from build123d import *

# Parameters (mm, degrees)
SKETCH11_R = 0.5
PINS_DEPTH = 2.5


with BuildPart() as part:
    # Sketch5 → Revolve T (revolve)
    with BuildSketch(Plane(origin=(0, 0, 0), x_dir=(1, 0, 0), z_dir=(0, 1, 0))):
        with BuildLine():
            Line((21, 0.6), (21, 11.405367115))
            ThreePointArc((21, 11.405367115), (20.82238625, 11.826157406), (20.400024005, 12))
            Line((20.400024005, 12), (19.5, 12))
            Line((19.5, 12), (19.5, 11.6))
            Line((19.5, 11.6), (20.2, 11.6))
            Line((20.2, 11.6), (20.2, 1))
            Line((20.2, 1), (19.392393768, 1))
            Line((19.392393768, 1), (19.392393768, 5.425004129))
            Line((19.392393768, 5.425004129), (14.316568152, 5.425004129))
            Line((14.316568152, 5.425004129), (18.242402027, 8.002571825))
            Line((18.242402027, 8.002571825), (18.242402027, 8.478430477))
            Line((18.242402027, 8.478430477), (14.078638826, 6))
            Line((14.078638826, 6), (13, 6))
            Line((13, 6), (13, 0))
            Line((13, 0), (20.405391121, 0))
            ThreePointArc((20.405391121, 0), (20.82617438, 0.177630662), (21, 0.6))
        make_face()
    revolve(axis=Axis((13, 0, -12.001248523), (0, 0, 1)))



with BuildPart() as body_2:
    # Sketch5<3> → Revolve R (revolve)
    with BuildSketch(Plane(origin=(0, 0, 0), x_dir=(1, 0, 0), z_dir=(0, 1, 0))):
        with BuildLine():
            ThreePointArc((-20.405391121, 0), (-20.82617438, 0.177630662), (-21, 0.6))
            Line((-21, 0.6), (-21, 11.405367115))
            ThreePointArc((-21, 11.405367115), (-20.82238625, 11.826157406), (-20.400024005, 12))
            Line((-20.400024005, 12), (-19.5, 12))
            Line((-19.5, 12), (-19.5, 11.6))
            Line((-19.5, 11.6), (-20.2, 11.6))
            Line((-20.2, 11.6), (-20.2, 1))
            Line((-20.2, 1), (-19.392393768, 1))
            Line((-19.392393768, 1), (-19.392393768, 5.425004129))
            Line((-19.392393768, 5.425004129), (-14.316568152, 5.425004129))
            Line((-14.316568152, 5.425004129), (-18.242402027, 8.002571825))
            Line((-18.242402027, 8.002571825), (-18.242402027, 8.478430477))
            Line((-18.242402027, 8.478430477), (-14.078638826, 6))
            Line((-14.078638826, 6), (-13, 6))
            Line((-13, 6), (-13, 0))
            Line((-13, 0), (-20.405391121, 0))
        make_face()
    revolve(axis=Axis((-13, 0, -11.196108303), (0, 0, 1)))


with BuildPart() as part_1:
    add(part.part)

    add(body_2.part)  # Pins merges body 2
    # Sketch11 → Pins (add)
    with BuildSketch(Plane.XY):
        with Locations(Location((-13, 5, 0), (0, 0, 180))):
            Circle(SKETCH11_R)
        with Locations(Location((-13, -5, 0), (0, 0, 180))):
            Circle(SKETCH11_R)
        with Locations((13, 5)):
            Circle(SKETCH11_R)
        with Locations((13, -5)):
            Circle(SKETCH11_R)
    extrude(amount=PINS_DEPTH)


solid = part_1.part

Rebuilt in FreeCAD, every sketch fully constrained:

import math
import FreeCAD as App
import Part
import Sketcher

doc = App.newDocument("Part")
body = doc.addObject("PartDesign::Body", "Body")

sketch1 = body.newObject("Sketcher::SketchObject", "Sketch")
sketch1.AttachmentSupport = (doc.getObject("XZ_Plane"), [""])
sketch1.MapMode = "FlatFace"
sketch1.addGeometry([
    Part.LineSegment(App.Vector(21, -0.6, 0), App.Vector(21, -11.41, 0)),
    Part.ArcOfCircle(Part.Circle(App.Vector(20.4, -11.4, 0), App.Vector(0, 0, 1), 0.6), math.radians(-90), math.radians(-1)),
    Part.LineSegment(App.Vector(20.4, -12, 0), App.Vector(19.5, -12, 0)),
    Part.LineSegment(App.Vector(19.5, -12, 0), App.Vector(19.5, -11.6, 0)),
    Part.LineSegment(App.Vector(19.5, -11.6, 0), App.Vector(20.2, -11.6, 0)),
    Part.LineSegment(App.Vector(20.2, -11.6, 0), App.Vector(20.2, -1, 0)),
    Part.LineSegment(App.Vector(20.2, -1, 0), App.Vector(19.39, -1, 0)),
    Part.LineSegment(App.Vector(19.39, -1, 0), App.Vector(19.39, -5.43, 0)),
    Part.LineSegment(App.Vector(19.39, -5.43, 0), App.Vector(14.32, -5.43, 0)),
    Part.LineSegment(App.Vector(14.32, -5.43, 0), App.Vector(18.24, -8, 0)),
    Part.LineSegment(App.Vector(18.24, -8, 0), App.Vector(18.24, -8.48, 0)),
    Part.LineSegment(App.Vector(18.24, -8.48, 0), App.Vector(14.08, -6, 0)),
    Part.LineSegment(App.Vector(14.08, -6, 0), App.Vector(13, -6, 0)),
    Part.LineSegment(App.Vector(13, -6, 0), App.Vector(13, 0, 0)),
    Part.LineSegment(App.Vector(13, 0, 0), App.Vector(20.41, 0, 0)),
    Part.ArcOfCircle(Part.Circle(App.Vector(20.4, -0.6, 0), App.Vector(0, 0, 1), 0.6), math.radians(0), math.radians(89)),
], False)
sketch1.addGeometry(Part.LineSegment(App.Vector(13, -12, 0), App.Vector(13, 0, 0)), True)
sketch1.addConstraint([
    Sketcher.Constraint("Coincident", 0, 2, 1, 2),
    Sketcher.Constraint("Tangent", 1, 1, 2, 1),
    Sketcher.Constraint("Coincident", 2, 2, 3, 1),
    Sketcher.Constraint("Coincident", 3, 2, 4, 1),
    Sketcher.Constraint("Coincident", 4, 2, 5, 1),
    Sketcher.Constraint("Coincident", 5, 2, 6, 1),
    Sketcher.Constraint("Coincident", 6, 2, 7, 1),
    Sketcher.Constraint("Coincident", 7, 2, 8, 1),
    Sketcher.Constraint("Coincident", 8, 2, 9, 1),
    Sketcher.Constraint("Coincident", 9, 2, 10, 1),
    Sketcher.Constraint("Coincident", 10, 2, 11, 1),
    Sketcher.Constraint("Coincident", 11, 2, 12, 1),
    Sketcher.Constraint("Coincident", 12, 2, 13, 1),
    Sketcher.Constraint("Coincident", 13, 2, 14, 1),
    Sketcher.Constraint("Coincident", 14, 2, 15, 2),
    Sketcher.Constraint("Coincident", 15, 1, 0, 1),
    Sketcher.Constraint("Vertical", 0),
    Sketcher.Constraint("Horizontal", 2),
    Sketcher.Constraint("Vertical", 3),
    Sketcher.Constraint("Horizontal", 4),
    Sketcher.Constraint("Vertical", 5),
    Sketcher.Constraint("Horizontal", 6),
    Sketcher.Constraint("Vertical", 7),
    Sketcher.Constraint("Horizontal", 8),
    Sketcher.Constraint("Vertical", 10),
    Sketcher.Constraint("Horizontal", 12),
    Sketcher.Constraint("Vertical", 13),
    Sketcher.Constraint("Horizontal", 14),
    Sketcher.Constraint("Vertical", 16),
    Sketcher.Constraint("Coincident", 16, 2, 13, 2),
    Sketcher.Constraint("Equal", 1, 15),
    Sketcher.Constraint("PointOnObject", 13, 2, -1),
    Sketcher.Constraint("Horizontal", 2, 2, 16, 1),
    Sketcher.Constraint("Radius", 1, 0.6),
    Sketcher.Constraint("DistanceY", 13, 1, 13, 2, 6.0),
    Sketcher.Constraint("DistanceY", 16, 1, 16, 2, 12.0),
    Sketcher.Constraint("DistanceX", 4, 1, 4, 2, 0.7),
    Sketcher.Constraint("DistanceY", 3, 1, 3, 2, 0.4),
    Sketcher.Constraint("DistanceY", 5, 1, 5, 2, 10.6),
    Sketcher.Constraint("DistanceX", -1, 1, 0, 2, 21.0),
    Sketcher.Constraint("DistanceX", -1, 1, 12, 2, 13.0),
    Sketcher.Constraint("DistanceX", -1, 1, 2, 2, 19.5),
    Sketcher.Constraint("DistanceY", 15, 1, -1, 1, 0.6),
    Sketcher.Constraint("DistanceX", 12, 2, 12, 1, 1.078639),
    Sketcher.Constraint("DistanceX", 14, 1, 14, 2, 7.405391),
    Sketcher.Constraint("DistanceY", 10, 2, 10, 1, 0.475859),
    Sketcher.Constraint("Distance", 11, 4.845569),
    Sketcher.Constraint("DistanceX", 2, 2, 2, 1, 0.900024),
    Sketcher.Constraint("DistanceX", 6, 2, 6, 1, 0.807606),
    Sketcher.Constraint("DistanceX", 8, 2, 8, 1, 5.075826),
    Sketcher.Constraint("DistanceY", 7, 2, 7, 1, 4.425004),
    Sketcher.Constraint("DistanceY", 9, 2, -1, 1, 8.002572),
])
revolution = body.newObject("PartDesign::Revolution", "Revolution")
revolution.Profile = sketch1
revolution.ReferenceAxis = (sketch1, ["Axis0"])
revolution.Angle = 360
body2 = doc.addObject("PartDesign::Body", "Body001")

sketch2 = body2.newObject("Sketcher::SketchObject", "Sketch001")
sketch2.AttachmentSupport = (doc.getObject("XZ_Plane001"), [""])
sketch2.MapMode = "FlatFace"
sketch2.addGeometry([
    Part.ArcOfCircle(Part.Circle(App.Vector(-20.4, -0.6, 0), App.Vector(0, 0, 1), 0.6), math.radians(91), math.radians(180)),
    Part.LineSegment(App.Vector(-20.41, 0, 0), App.Vector(-13, 0, 0)),
    Part.LineSegment(App.Vector(-13, 0, 0), App.Vector(-13, -6, 0)),
    Part.LineSegment(App.Vector(-13, -6, 0), App.Vector(-14.08, -6, 0)),
    Part.LineSegment(App.Vector(-14.08, -6, 0), App.Vector(-18.24, -8.48, 0)),
    Part.LineSegment(App.Vector(-18.24, -8.48, 0), App.Vector(-18.24, -8, 0)),
    Part.LineSegment(App.Vector(-18.24, -8, 0), App.Vector(-14.32, -5.43, 0)),
    Part.LineSegment(App.Vector(-14.32, -5.43, 0), App.Vector(-19.39, -5.43, 0)),
    Part.LineSegment(App.Vector(-19.39, -5.43, 0), App.Vector(-19.39, -1, 0)),
    Part.LineSegment(App.Vector(-19.39, -1, 0), App.Vector(-20.2, -1, 0)),
    Part.LineSegment(App.Vector(-20.2, -1, 0), App.Vector(-20.2, -11.6, 0)),
    Part.LineSegment(App.Vector(-20.2, -11.6, 0), App.Vector(-19.5, -11.6, 0)),
    Part.LineSegment(App.Vector(-19.5, -11.6, 0), App.Vector(-19.5, -12, 0)),
    Part.LineSegment(App.Vector(-19.5, -12, 0), App.Vector(-20.4, -12, 0)),
    Part.ArcOfCircle(Part.Circle(App.Vector(-20.4, -11.4, 0), App.Vector(0, 0, 1), 0.6), math.radians(-179), math.radians(-90)),
    Part.LineSegment(App.Vector(-21, -11.41, 0), App.Vector(-21, -0.6, 0)),
], False)
sketch2.addGeometry(Part.LineSegment(App.Vector(-13, -12, 0), App.Vector(-13, 0, 0)), True)
sketch2.addConstraint([
    Sketcher.Constraint("Coincident", 0, 1, 1, 1),
    Sketcher.Constraint("Coincident", 1, 2, 2, 1),
    Sketcher.Constraint("Coincident", 2, 2, 3, 1),
    Sketcher.Constraint("Coincident", 3, 2, 4, 1),
    Sketcher.Constraint("Coincident", 4, 2, 5, 1),
    Sketcher.Constraint("Coincident", 5, 2, 6, 1),
    Sketcher.Constraint("Coincident", 6, 2, 7, 1),
    Sketcher.Constraint("Coincident", 7, 2, 8, 1),
    Sketcher.Constraint("Coincident", 8, 2, 9, 1),
    Sketcher.Constraint("Coincident", 9, 2, 10, 1),
    Sketcher.Constraint("Coincident", 10, 2, 11, 1),
    Sketcher.Constraint("Coincident", 11, 2, 12, 1),
    Sketcher.Constraint("Coincident", 12, 2, 13, 1),
    Sketcher.Constraint("Tangent", 13, 2, 14, 2),
    Sketcher.Constraint("Coincident", 14, 1, 15, 1),
    Sketcher.Constraint("Coincident", 15, 2, 0, 2),
    Sketcher.Constraint("Horizontal", 1),
    Sketcher.Constraint("Vertical", 2),
    Sketcher.Constraint("Horizontal", 3),
    Sketcher.Constraint("Vertical", 5),
    Sketcher.Constraint("Horizontal", 7),
    Sketcher.Constraint("Vertical", 8),
    Sketcher.Constraint("Horizontal", 9),
    Sketcher.Constraint("Vertical", 10),
    Sketcher.Constraint("Horizontal", 11),
    Sketcher.Constraint("Vertical", 12),
    Sketcher.Constraint("Horizontal", 13),
    Sketcher.Constraint("Vertical", 15),
    Sketcher.Constraint("Vertical", 16),
    Sketcher.Constraint("Coincident", 16, 2, 1, 2),
    Sketcher.Constraint("Equal", 0, 14),
    Sketcher.Constraint("PointOnObject", 0, 1, -1),
    Sketcher.Constraint("Horizontal", 13, 2, 16, 1),
    Sketcher.Constraint("Radius", 0, 0.6),
    Sketcher.Constraint("DistanceY", 2, 2, 2, 1, 6.0),
    Sketcher.Constraint("DistanceY", 16, 1, 16, 2, 12.0),
    Sketcher.Constraint("DistanceX", 11, 1, 11, 2, 0.7),
    Sketcher.Constraint("DistanceY", 10, 2, 10, 1, 10.6),
    Sketcher.Constraint("DistanceY", 12, 2, 12, 1, 0.4),
    Sketcher.Constraint("DistanceX", 1, 2, -1, 1, 13.0),
    Sketcher.Constraint("DistanceX", 14, 1, -1, 1, 21.0),
    Sketcher.Constraint("DistanceX", 9, 2, -1, 1, 20.2),
    Sketcher.Constraint("DistanceY", 15, 2, -1, 1, 0.6),
    Sketcher.Constraint("DistanceX", 1, 1, 1, 2, 7.405391),
    Sketcher.Constraint("DistanceX", 3, 2, 3, 1, 1.078639),
    Sketcher.Constraint("DistanceY", 5, 1, 5, 2, 0.475859),
    Sketcher.Constraint("Distance", 4, 4.845569),
    Sketcher.Constraint("DistanceX", 7, 2, 7, 1, 5.075826),
    Sketcher.Constraint("DistanceX", 9, 2, 9, 1, 0.807606),
    Sketcher.Constraint("DistanceX", 13, 2, 13, 1, 0.900024),
    Sketcher.Constraint("DistanceY", 8, 1, 8, 2, 4.425004),
    Sketcher.Constraint("DistanceY", 4, 2, -1, 1, 8.47843),
])
revolution2 = body2.newObject("PartDesign::Revolution", "Revolution001")
revolution2.Profile = sketch2
revolution2.ReferenceAxis = (sketch2, ["Axis0"])
revolution2.Angle = 360
body.AllowCompound = True
doc.recompute()

boolean = body.newObject("PartDesign::Boolean", "Boolean")
boolean.Type = "Fuse"
boolean.addObjects([body2])

sketch3 = body.newObject("Sketcher::SketchObject", "Sketch002")
sketch3.AttachmentSupport = (doc.getObject("XY_Plane"), [""])
sketch3.MapMode = "FlatFace"
sketch3.addGeometry([
    Part.Circle(App.Vector(-13, 5, 0), App.Vector(0, 0, 1), 0.5),
    Part.Circle(App.Vector(-13, -5, 0), App.Vector(0, 0, 1), 0.5),
    Part.Circle(App.Vector(13, 5, 0), App.Vector(0, 0, 1), 0.5),
    Part.Circle(App.Vector(13, -5, 0), App.Vector(0, 0, 1), 0.5),
], False)
sketch3.addConstraint([
    Sketcher.Constraint("Equal", 0, 1),
    Sketcher.Constraint("Equal", 1, 2),
    Sketcher.Constraint("Equal", 2, 3),
    Sketcher.Constraint("Symmetric", 1, 3, 2, 3, -1, 1),
    Sketcher.Constraint("Symmetric", 0, 3, 3, 3, -1, 1),
    Sketcher.Constraint("Symmetric", 0, 3, 2, 3, -2),
    Sketcher.Constraint("Diameter", 0, 1.0),
    Sketcher.Constraint("DistanceX", 0, 3, -1, 1, 13.0),
    Sketcher.Constraint("DistanceY", -1, 1, 0, 3, 5.0),
])
pad1 = body.newObject("PartDesign::Pad", "Pad")
pad1.Profile = sketch3
pad1.Length = 2.5

doc.recompute()
